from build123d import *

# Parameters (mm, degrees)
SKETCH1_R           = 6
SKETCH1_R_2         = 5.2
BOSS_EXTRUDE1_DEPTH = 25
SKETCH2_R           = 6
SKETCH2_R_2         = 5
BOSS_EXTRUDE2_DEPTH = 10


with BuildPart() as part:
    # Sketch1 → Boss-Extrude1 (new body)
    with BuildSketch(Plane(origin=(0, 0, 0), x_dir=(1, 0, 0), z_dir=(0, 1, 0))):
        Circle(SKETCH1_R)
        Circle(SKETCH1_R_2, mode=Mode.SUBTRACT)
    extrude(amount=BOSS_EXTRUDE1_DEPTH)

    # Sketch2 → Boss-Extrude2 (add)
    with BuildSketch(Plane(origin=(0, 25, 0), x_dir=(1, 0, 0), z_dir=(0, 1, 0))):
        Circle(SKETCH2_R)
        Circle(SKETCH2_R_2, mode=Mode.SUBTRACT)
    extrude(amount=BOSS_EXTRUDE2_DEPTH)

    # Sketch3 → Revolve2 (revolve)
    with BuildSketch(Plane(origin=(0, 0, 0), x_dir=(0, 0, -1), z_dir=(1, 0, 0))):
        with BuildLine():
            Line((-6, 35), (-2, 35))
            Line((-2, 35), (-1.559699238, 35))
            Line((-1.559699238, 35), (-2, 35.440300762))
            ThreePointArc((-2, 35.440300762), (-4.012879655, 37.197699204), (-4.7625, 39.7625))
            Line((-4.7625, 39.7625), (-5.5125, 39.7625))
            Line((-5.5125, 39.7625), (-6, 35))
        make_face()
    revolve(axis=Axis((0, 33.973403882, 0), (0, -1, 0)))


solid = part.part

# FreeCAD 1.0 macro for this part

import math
import FreeCAD as App
import Part
import Sketcher
from FreeCAD import Vector
Q = App.Units.Quantity

doc = App.newDocument("Part")
params = doc.addObject("Spreadsheet::Sheet", "Params")
for row, (alias, value) in enumerate([
    ("sketch1_diameter", "12 mm"),
    ("sketch1_diameter2", "10.4 mm"),
    ("pad1_length", "25 mm"),
    ("sketch2_diameter", "12 mm"),
    ("sketch2_diameter2", "10 mm"),
    ("pad2_length", "10 mm"),
    ("sketch3_height", "0.75 mm"),
    ("revolution_angle", "360 deg"),
], start=1):
    params.set(f"A{row}", alias)
    params.set(f"B{row}", "=" + value)
    params.setAlias(f"B{row}", alias)

body = doc.addObject("PartDesign::Body", "Body")

sketch1 = doc.addObject("Sketcher::SketchObject", "Sketch")
body.addObject(sketch1)
sketch1.AttachmentSupport = (doc.XZ_Plane, [""])
sketch1.MapMode = "FlatFace"
sketch1.addGeometry(Part.Circle(Vector(0, 0, 0), Vector(0, 0, 1), 6), False)
sketch1.addGeometry(Part.Circle(Vector(0, 0, 0), Vector(0, 0, 1), 5), False)
sketch1.addConstraint(Sketcher.Constraint("Coincident", 0, 3, -1, 1))
sketch1.addConstraint(Sketcher.Constraint("Coincident", 1, 3, -1, 1))
sketch1.addConstraint(Sketcher.Constraint("Diameter", 0, 12.0))
sketch1.addConstraint(Sketcher.Constraint("Diameter", 1, 10.4))
sketch1.setExpression("Constraints[2]", "Params.sketch1_diameter")
sketch1.setExpression("Constraints[3]", "Params.sketch1_diameter2")
pad1 = doc.addObject("PartDesign::Pad", "Pad")
body.addObject(pad1)
pad1.Profile = sketch1
pad1.setExpression("Length", "Params.pad1_length")
pad1.Reversed = True

sketch2 = doc.addObject("Sketcher::SketchObject", "Sketch001")
body.addObject(sketch2)
sketch2.AttachmentSupport = (doc.XZ_Plane, [""])
sketch2.MapMode = "FlatFace"
sketch2.AttachmentOffset = App.Placement(Vector(0, 0, -25), App.Rotation())
sketch2.addGeometry(Part.Circle(Vector(0, 0, 0), Vector(0, 0, 1), 6), False)
sketch2.addGeometry(Part.Circle(Vector(0, 0, 0), Vector(0, 0, 1), 5), False)
sketch2.addConstraint(Sketcher.Constraint("Coincident", 0, 3, -1, 1))
sketch2.addConstraint(Sketcher.Constraint("Coincident", 1, 3, -1, 1))
sketch2.addConstraint(Sketcher.Constraint("Diameter", 0, 12.0))
sketch2.addConstraint(Sketcher.Constraint("Diameter", 1, 10.0))
sketch2.setExpression("Constraints[2]", "Params.sketch2_diameter")
sketch2.setExpression("Constraints[3]", "Params.sketch2_diameter2")
pad2 = doc.addObject("PartDesign::Pad", "Pad001")
body.addObject(pad2)
pad2.Profile = sketch2
pad2.setExpression("Length", "Params.pad2_length")
pad2.Reversed = True

sketch3 = doc.addObject("Sketcher::SketchObject", "Sketch002")
body.addObject(sketch3)
sketch3.AttachmentSupport = (doc.YZ_Plane, [""])
sketch3.MapMode = "FlatFace"
sketch3.addGeometry(Part.LineSegment(Vector(35, 6, 0), Vector(35, 1.6, 0)), False)
sketch3.addGeometry(Part.LineSegment(Vector(35, 1.6, 0), Vector(35.4, 2, 0)), False)
sketch3.addGeometry(Part.ArcOfCircle(Part.Circle(Vector(39.8, 0, 0), Vector(0, 0, 1), 4.8), math.radians(90), math.radians(155)), False)
sketch3.addGeometry(Part.LineSegment(Vector(39.8, 4.8, 0), Vector(39.8, 5.5, 0)), False)
sketch3.addGeometry(Part.LineSegment(Vector(39.8, 5.5, 0), Vector(35, 6, 0)), False)
sketch3.addConstraint(Sketcher.Constraint("Coincident", 0, 2, 1, 1))
sketch3.addConstraint(Sketcher.Constraint("Coincident", 1, 2, 2, 2))
sketch3.addConstraint(Sketcher.Constraint("Coincident", 2, 1, 3, 1))
sketch3.addConstraint(Sketcher.Constraint("Coincident", 3, 2, 4, 1))
sketch3.addConstraint(Sketcher.Constraint("Coincident", 4, 2, 0, 1))
sketch3.addConstraint(Sketcher.Constraint("Vertical", 0))
sketch3.addConstraint(Sketcher.Constraint("Vertical", 3))
sketch3.addConstraint(Sketcher.Constraint("PointOnObject", 2, 3, -1))
sketch3.addConstraint(Sketcher.Constraint("Angle", 1, Q("45 deg")))
sketch3.addConstraint(Sketcher.Constraint("DistanceX", -1, 1, 0, 2, 35.0))
sketch3.addConstraint(Sketcher.Constraint("DistanceY", -1, 1, 1, 2, 2.0))
sketch3.addConstraint(Sketcher.Constraint("DistanceY", -1, 1, 4, 2, 6.0))
sketch3.addConstraint(Sketcher.Constraint("DistanceY", 3, 1, 3, 2, 0.75))
sketch3.addConstraint(Sketcher.Constraint("Radius", 2, 4.7625))
sketch3.addConstraint(Sketcher.Constraint("DistanceY", 0, 2, 0, 1, 4.440301))
sketch3.addConstraint(Sketcher.Constraint("DistanceX", -1, 1, 2, 1, 39.7625))
sketch3.setExpression("Constraints[12]", "Params.sketch3_height")
revolution = doc.addObject("PartDesign::Revolution", "Revolution")
body.addObject(revolution)
revolution.Profile = sketch3
revolution.ReferenceAxis = (sketch3, ["H_Axis"])
revolution.setExpression("Angle", "Params.revolution_angle")

doc.recompute()
